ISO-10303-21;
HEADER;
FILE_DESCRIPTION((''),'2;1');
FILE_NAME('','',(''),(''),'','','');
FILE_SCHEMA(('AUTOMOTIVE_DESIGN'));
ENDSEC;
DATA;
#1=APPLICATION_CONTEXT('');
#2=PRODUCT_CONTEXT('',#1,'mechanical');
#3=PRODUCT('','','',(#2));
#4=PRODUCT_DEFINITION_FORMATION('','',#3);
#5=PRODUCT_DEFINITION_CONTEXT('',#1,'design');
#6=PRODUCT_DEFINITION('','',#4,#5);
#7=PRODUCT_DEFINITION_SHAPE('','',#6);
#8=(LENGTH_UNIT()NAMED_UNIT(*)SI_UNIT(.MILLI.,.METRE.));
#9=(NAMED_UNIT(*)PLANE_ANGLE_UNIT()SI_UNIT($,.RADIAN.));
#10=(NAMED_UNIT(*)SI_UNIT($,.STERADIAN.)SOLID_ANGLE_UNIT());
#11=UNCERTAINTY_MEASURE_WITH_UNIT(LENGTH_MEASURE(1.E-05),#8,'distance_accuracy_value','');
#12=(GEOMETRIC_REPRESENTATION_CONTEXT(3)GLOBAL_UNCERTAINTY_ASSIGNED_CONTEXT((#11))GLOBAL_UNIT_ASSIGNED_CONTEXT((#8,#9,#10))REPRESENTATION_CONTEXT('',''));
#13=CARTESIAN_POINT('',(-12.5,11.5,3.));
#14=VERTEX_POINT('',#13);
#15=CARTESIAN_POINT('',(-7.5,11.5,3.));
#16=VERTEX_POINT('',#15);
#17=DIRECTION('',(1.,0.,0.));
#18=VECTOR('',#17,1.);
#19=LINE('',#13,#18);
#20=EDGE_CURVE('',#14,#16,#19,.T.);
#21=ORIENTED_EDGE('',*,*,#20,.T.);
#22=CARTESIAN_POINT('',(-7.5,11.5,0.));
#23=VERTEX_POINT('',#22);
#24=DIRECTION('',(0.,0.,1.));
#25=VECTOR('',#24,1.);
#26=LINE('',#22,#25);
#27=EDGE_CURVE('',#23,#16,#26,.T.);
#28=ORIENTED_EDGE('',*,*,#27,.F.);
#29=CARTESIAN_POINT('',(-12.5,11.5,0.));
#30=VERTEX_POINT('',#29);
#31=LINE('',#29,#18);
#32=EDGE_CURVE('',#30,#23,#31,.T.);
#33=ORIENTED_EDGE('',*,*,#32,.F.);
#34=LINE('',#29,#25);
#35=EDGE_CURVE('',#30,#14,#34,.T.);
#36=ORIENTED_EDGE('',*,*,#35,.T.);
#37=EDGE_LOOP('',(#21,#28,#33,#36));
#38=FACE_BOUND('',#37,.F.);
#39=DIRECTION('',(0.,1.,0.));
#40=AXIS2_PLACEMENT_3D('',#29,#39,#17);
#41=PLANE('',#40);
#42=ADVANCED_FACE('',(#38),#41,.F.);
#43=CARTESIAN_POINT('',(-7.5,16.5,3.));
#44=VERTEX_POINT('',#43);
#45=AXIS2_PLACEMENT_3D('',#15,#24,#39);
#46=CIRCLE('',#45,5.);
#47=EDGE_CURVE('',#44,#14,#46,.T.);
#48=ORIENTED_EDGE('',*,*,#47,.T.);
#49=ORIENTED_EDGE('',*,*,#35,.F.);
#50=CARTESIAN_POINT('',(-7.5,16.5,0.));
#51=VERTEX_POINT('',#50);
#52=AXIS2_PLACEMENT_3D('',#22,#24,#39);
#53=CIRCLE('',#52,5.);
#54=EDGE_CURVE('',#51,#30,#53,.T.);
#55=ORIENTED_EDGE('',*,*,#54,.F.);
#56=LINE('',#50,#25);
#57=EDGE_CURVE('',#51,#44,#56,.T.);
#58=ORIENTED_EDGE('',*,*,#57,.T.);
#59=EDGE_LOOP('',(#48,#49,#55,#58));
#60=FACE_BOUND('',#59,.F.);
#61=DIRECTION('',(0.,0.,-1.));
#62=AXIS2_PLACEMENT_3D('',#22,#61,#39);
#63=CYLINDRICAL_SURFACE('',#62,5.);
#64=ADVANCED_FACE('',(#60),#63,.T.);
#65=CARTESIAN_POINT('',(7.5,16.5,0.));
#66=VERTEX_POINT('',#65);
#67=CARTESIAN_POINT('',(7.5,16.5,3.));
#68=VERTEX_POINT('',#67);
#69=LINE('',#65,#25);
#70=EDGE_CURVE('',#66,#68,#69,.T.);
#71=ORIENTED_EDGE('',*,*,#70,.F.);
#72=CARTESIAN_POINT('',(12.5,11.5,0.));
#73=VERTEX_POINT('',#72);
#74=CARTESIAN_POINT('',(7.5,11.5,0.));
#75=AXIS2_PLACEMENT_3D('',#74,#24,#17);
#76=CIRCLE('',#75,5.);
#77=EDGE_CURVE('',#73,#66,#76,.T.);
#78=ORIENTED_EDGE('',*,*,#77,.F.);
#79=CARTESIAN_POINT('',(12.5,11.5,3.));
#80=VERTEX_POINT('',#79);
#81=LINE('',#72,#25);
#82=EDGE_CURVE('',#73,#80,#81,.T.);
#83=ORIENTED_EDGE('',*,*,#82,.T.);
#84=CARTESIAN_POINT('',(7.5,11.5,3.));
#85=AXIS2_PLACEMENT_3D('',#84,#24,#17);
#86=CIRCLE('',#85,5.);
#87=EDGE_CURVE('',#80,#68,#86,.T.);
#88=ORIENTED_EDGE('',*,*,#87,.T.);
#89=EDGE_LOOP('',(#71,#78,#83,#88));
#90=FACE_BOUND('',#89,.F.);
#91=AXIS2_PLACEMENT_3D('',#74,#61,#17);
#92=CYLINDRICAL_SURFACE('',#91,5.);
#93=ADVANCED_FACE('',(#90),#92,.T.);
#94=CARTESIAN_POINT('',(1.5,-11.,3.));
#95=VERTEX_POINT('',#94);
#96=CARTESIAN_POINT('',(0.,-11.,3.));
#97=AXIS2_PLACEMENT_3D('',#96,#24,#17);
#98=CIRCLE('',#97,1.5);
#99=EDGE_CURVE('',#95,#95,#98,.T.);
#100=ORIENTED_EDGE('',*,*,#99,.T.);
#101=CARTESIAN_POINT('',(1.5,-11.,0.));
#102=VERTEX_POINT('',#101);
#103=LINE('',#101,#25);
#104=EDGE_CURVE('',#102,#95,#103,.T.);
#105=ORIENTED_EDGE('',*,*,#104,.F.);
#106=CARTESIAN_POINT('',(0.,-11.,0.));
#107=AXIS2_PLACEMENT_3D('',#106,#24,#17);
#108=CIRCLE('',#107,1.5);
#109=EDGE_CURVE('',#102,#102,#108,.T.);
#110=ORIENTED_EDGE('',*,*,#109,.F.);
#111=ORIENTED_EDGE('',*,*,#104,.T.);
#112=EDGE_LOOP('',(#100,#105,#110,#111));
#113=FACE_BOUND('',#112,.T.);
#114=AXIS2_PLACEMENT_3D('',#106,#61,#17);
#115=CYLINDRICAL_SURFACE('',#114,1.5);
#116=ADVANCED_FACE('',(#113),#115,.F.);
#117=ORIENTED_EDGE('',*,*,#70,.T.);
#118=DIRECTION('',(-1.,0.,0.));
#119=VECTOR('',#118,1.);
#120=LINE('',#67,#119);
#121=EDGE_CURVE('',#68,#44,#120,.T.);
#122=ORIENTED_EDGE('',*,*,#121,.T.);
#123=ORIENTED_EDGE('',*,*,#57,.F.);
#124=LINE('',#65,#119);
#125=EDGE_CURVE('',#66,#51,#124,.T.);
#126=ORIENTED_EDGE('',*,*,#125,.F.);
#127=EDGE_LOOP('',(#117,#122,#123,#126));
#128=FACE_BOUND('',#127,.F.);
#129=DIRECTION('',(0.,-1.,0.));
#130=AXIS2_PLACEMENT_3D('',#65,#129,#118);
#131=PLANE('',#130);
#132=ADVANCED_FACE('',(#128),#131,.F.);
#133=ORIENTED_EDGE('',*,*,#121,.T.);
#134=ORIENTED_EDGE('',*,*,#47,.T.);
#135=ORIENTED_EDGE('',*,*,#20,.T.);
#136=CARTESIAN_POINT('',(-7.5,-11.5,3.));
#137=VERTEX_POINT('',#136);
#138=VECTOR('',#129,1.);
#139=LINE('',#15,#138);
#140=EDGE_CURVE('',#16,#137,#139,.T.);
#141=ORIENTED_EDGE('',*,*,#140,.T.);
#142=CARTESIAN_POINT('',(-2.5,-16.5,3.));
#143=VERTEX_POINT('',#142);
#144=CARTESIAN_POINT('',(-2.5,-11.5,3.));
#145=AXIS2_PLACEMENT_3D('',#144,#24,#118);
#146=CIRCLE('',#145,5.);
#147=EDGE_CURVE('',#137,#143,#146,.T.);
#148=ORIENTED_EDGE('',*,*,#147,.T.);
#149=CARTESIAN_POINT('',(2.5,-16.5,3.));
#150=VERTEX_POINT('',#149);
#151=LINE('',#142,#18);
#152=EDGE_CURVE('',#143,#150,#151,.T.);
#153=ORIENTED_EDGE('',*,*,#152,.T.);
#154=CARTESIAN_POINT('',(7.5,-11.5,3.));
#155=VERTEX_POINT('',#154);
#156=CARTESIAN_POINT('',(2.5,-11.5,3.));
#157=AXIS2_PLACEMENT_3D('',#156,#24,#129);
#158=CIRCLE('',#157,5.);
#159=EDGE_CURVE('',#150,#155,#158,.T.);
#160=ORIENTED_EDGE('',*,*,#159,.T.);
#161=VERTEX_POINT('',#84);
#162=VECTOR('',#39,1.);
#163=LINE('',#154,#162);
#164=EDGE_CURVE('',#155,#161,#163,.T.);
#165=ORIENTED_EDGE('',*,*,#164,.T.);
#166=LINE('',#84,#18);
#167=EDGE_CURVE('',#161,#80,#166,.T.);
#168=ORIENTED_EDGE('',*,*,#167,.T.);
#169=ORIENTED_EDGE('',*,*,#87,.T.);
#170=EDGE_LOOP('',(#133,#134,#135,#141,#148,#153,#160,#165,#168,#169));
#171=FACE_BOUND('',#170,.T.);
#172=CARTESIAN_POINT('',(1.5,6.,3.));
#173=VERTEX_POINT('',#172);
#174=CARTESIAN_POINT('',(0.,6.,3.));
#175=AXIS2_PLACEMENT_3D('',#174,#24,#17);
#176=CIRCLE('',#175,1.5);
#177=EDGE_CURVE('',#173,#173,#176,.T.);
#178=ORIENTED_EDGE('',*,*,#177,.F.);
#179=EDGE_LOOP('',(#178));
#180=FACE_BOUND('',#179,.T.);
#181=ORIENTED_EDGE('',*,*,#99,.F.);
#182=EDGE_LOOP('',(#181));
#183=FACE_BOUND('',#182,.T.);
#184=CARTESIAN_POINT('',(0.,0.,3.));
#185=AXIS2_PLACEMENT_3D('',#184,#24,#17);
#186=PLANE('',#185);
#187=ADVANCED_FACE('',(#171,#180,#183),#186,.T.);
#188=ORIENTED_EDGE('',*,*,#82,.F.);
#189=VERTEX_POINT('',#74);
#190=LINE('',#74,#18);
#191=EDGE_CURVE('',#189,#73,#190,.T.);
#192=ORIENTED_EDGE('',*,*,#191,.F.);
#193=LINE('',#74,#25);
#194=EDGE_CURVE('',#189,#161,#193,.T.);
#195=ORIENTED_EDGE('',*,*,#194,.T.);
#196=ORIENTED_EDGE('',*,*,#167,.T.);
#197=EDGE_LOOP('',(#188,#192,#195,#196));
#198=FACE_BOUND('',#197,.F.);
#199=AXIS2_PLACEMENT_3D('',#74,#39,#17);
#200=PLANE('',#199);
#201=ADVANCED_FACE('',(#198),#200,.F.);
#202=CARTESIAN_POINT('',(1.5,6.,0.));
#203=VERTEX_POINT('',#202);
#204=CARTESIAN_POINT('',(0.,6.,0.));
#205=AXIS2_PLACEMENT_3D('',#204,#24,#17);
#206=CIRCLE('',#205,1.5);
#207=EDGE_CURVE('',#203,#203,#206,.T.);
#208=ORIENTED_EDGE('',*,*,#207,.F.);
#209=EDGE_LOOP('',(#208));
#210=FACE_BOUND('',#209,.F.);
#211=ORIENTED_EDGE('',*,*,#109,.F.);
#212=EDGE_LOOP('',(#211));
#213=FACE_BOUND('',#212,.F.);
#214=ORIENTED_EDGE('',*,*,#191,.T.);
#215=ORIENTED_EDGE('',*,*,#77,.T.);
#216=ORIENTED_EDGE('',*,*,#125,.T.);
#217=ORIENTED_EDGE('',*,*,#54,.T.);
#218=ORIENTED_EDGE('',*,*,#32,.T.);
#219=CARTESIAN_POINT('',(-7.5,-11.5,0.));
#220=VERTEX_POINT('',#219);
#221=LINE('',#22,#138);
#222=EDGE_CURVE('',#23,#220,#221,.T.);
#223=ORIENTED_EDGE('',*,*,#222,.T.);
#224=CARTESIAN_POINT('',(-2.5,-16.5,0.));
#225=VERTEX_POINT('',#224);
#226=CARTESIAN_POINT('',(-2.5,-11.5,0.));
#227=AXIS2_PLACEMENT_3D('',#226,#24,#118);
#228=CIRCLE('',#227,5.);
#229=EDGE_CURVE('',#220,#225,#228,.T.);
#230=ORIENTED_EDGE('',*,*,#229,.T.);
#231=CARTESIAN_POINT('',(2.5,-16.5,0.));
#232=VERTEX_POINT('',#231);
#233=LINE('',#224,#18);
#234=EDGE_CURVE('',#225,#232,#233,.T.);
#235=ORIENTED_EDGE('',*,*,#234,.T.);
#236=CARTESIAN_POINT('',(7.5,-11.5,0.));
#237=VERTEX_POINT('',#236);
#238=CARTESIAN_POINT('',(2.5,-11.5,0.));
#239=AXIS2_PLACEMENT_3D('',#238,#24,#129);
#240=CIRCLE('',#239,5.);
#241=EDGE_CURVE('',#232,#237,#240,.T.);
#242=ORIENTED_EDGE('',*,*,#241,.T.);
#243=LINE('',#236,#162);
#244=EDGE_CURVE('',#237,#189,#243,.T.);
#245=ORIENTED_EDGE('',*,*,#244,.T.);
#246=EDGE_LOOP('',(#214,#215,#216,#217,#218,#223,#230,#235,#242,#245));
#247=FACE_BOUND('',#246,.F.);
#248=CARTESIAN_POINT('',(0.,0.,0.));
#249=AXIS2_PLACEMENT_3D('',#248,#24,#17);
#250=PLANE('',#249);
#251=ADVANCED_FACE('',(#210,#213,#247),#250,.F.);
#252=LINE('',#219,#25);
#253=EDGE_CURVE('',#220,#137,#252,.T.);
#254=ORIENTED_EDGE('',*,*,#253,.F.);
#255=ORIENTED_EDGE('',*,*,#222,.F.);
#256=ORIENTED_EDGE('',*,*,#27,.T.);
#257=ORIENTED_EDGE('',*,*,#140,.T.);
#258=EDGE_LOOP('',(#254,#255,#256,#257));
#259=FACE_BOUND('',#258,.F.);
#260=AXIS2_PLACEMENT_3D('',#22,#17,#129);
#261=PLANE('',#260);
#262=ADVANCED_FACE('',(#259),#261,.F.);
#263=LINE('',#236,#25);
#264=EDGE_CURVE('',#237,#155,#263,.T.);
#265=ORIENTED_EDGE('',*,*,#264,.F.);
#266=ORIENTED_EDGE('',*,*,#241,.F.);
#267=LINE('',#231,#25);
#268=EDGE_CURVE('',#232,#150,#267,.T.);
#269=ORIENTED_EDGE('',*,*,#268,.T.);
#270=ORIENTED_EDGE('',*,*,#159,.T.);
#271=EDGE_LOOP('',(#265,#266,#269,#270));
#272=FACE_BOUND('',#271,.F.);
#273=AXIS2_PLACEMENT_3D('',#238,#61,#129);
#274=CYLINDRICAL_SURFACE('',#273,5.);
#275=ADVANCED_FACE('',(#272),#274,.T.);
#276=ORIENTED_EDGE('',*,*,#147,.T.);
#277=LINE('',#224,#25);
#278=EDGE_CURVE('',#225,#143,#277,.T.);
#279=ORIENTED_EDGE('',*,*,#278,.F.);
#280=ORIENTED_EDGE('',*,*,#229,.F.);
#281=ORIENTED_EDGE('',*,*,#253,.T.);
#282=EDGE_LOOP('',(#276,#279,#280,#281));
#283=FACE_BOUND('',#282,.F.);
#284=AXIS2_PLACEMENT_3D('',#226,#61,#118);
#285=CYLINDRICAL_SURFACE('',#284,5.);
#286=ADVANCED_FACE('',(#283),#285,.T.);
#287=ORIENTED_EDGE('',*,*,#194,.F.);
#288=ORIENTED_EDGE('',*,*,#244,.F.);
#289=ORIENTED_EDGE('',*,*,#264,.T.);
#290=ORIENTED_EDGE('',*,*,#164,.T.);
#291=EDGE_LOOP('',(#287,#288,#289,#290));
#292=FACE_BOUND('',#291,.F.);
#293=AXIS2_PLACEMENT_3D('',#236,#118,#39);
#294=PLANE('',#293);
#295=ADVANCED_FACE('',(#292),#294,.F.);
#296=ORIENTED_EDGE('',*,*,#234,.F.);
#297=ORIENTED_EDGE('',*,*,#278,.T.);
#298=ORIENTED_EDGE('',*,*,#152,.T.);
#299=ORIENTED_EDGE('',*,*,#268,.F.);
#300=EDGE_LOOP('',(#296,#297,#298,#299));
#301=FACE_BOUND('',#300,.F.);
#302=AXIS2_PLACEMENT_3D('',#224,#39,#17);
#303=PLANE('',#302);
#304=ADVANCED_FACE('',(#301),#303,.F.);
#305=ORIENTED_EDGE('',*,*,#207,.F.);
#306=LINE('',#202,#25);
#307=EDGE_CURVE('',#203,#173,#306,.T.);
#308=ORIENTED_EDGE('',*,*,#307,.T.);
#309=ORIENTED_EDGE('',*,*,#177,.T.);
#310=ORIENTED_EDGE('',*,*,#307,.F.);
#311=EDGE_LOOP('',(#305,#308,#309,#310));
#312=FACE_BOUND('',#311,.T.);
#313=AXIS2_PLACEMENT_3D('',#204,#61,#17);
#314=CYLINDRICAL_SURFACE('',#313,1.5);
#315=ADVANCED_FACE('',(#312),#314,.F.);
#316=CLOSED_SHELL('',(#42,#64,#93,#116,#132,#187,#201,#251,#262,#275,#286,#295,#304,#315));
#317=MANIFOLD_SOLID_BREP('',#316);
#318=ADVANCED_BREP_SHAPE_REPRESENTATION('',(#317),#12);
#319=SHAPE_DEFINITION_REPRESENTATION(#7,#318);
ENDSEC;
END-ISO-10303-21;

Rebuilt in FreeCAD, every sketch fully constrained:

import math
import FreeCAD as App
import Part
import Sketcher
Q = App.Units.Quantity

doc = App.newDocument("Part")
body = doc.addObject("PartDesign::Body", "Body")

sketch1 = body.newObject("Sketcher::SketchObject", "Sketch")
sketch1.AttachmentSupport = (doc.getObject("XY_Plane"), [""])
sketch1.MapMode = "FlatFace"
sketch1.addGeometry([
    Part.ArcOfCircle(Part.Circle(App.Vector(-7.5, 11.5, 0), App.Vector(0, 0, 1), 5), math.radians(90), math.radians(180)),
    Part.LineSegment(App.Vector(-12.5, 11.5, 0), App.Vector(-7.5, 11.5, 0)),
    Part.LineSegment(App.Vector(-7.5, 11.5, 0), App.Vector(-7.5, -11.5, 0)),
    Part.ArcOfCircle(Part.Circle(App.Vector(-2.5, -11.5, 0), App.Vector(0, 0, 1), 5), math.radians(180), math.radians(270)),
    Part.LineSegment(App.Vector(-2.5, -16.5, 0), App.Vector(2.5, -16.5, 0)),
    Part.ArcOfCircle(Part.Circle(App.Vector(2.5, -11.5, 0), App.Vector(0, 0, 1), 5), math.radians(-90), math.radians(0)),
    Part.LineSegment(App.Vector(7.5, -11.5, 0), App.Vector(7.5, 11.5, 0)),
    Part.LineSegment(App.Vector(7.5, 11.5, 0), App.Vector(12.5, 11.5, 0)),
    Part.ArcOfCircle(Part.Circle(App.Vector(7.5, 11.5, 0), App.Vector(0, 0, 1), 5), math.radians(0), math.radians(90)),
    Part.LineSegment(App.Vector(7.5, 16.5, 0), App.Vector(-7.5, 16.5, 0)),
    Part.Circle(App.Vector(0, -11, 0), App.Vector(0, 0, 1), 1.5),
    Part.Circle(App.Vector(0, 6, 0), App.Vector(0, 0, 1), 1.5),
], False)
sketch1.addConstraint([
    Sketcher.Constraint("Coincident", 0, 2, 1, 1),
    Sketcher.Constraint("Coincident", 1, 2, 2, 1),
    Sketcher.Constraint("Tangent", 2, 2, 3, 1),
    Sketcher.Constraint("Tangent", 3, 2, 4, 1),
    Sketcher.Constraint("Tangent", 4, 2, 5, 1),
    Sketcher.Constraint("Tangent", 5, 2, 6, 1),
    Sketcher.Constraint("Coincident", 6, 2, 7, 1),
    Sketcher.Constraint("Coincident", 7, 2, 8, 1),
    Sketcher.Constraint("Tangent", 8, 2, 9, 1),
    Sketcher.Constraint("Tangent", 9, 2, 0, 1),
    Sketcher.Constraint("Horizontal", 1),
    Sketcher.Constraint("Vertical", 2),
    Sketcher.Constraint("Horizontal", 4),
    Sketcher.Constraint("Vertical", 6),
    Sketcher.Constraint("Horizontal", 7),
    Sketcher.Constraint("Horizontal", 9),
    Sketcher.Constraint("Coincident", 1, 2, 0, 3),
    Sketcher.Constraint("Coincident", 6, 2, 8, 3),
    Sketcher.Constraint("Equal", 0, 3),
    Sketcher.Constraint("Equal", 3, 5),
    Sketcher.Constraint("Equal", 5, 8),
    Sketcher.Constraint("Equal", 10, 11),
    Sketcher.Constraint("Symmetric", 1, 2, 5, 2, -1, 1),
    Sketcher.Constraint("PointOnObject", 10, 3, -2),
    Sketcher.Constraint("PointOnObject", 11, 3, -2),
    Sketcher.Constraint("Equal", 1, 4),
    Sketcher.Constraint("Diameter", 10, Q("3 mm")),
    Sketcher.Constraint("Radius", 0, Q("5 mm")),
    Sketcher.Constraint("DistanceY", 2, 2, 2, 1, Q("23 mm")),
    Sketcher.Constraint("DistanceY", 10, 3, -1, 1, Q("11 mm")),
    Sketcher.Constraint("DistanceY", -1, 1, 11, 3, Q("6 mm")),
])
pad1 = body.newObject("PartDesign::Pad", "Pad")
pad1.Profile = sketch1
pad1.Length = 3

doc.recompute()
